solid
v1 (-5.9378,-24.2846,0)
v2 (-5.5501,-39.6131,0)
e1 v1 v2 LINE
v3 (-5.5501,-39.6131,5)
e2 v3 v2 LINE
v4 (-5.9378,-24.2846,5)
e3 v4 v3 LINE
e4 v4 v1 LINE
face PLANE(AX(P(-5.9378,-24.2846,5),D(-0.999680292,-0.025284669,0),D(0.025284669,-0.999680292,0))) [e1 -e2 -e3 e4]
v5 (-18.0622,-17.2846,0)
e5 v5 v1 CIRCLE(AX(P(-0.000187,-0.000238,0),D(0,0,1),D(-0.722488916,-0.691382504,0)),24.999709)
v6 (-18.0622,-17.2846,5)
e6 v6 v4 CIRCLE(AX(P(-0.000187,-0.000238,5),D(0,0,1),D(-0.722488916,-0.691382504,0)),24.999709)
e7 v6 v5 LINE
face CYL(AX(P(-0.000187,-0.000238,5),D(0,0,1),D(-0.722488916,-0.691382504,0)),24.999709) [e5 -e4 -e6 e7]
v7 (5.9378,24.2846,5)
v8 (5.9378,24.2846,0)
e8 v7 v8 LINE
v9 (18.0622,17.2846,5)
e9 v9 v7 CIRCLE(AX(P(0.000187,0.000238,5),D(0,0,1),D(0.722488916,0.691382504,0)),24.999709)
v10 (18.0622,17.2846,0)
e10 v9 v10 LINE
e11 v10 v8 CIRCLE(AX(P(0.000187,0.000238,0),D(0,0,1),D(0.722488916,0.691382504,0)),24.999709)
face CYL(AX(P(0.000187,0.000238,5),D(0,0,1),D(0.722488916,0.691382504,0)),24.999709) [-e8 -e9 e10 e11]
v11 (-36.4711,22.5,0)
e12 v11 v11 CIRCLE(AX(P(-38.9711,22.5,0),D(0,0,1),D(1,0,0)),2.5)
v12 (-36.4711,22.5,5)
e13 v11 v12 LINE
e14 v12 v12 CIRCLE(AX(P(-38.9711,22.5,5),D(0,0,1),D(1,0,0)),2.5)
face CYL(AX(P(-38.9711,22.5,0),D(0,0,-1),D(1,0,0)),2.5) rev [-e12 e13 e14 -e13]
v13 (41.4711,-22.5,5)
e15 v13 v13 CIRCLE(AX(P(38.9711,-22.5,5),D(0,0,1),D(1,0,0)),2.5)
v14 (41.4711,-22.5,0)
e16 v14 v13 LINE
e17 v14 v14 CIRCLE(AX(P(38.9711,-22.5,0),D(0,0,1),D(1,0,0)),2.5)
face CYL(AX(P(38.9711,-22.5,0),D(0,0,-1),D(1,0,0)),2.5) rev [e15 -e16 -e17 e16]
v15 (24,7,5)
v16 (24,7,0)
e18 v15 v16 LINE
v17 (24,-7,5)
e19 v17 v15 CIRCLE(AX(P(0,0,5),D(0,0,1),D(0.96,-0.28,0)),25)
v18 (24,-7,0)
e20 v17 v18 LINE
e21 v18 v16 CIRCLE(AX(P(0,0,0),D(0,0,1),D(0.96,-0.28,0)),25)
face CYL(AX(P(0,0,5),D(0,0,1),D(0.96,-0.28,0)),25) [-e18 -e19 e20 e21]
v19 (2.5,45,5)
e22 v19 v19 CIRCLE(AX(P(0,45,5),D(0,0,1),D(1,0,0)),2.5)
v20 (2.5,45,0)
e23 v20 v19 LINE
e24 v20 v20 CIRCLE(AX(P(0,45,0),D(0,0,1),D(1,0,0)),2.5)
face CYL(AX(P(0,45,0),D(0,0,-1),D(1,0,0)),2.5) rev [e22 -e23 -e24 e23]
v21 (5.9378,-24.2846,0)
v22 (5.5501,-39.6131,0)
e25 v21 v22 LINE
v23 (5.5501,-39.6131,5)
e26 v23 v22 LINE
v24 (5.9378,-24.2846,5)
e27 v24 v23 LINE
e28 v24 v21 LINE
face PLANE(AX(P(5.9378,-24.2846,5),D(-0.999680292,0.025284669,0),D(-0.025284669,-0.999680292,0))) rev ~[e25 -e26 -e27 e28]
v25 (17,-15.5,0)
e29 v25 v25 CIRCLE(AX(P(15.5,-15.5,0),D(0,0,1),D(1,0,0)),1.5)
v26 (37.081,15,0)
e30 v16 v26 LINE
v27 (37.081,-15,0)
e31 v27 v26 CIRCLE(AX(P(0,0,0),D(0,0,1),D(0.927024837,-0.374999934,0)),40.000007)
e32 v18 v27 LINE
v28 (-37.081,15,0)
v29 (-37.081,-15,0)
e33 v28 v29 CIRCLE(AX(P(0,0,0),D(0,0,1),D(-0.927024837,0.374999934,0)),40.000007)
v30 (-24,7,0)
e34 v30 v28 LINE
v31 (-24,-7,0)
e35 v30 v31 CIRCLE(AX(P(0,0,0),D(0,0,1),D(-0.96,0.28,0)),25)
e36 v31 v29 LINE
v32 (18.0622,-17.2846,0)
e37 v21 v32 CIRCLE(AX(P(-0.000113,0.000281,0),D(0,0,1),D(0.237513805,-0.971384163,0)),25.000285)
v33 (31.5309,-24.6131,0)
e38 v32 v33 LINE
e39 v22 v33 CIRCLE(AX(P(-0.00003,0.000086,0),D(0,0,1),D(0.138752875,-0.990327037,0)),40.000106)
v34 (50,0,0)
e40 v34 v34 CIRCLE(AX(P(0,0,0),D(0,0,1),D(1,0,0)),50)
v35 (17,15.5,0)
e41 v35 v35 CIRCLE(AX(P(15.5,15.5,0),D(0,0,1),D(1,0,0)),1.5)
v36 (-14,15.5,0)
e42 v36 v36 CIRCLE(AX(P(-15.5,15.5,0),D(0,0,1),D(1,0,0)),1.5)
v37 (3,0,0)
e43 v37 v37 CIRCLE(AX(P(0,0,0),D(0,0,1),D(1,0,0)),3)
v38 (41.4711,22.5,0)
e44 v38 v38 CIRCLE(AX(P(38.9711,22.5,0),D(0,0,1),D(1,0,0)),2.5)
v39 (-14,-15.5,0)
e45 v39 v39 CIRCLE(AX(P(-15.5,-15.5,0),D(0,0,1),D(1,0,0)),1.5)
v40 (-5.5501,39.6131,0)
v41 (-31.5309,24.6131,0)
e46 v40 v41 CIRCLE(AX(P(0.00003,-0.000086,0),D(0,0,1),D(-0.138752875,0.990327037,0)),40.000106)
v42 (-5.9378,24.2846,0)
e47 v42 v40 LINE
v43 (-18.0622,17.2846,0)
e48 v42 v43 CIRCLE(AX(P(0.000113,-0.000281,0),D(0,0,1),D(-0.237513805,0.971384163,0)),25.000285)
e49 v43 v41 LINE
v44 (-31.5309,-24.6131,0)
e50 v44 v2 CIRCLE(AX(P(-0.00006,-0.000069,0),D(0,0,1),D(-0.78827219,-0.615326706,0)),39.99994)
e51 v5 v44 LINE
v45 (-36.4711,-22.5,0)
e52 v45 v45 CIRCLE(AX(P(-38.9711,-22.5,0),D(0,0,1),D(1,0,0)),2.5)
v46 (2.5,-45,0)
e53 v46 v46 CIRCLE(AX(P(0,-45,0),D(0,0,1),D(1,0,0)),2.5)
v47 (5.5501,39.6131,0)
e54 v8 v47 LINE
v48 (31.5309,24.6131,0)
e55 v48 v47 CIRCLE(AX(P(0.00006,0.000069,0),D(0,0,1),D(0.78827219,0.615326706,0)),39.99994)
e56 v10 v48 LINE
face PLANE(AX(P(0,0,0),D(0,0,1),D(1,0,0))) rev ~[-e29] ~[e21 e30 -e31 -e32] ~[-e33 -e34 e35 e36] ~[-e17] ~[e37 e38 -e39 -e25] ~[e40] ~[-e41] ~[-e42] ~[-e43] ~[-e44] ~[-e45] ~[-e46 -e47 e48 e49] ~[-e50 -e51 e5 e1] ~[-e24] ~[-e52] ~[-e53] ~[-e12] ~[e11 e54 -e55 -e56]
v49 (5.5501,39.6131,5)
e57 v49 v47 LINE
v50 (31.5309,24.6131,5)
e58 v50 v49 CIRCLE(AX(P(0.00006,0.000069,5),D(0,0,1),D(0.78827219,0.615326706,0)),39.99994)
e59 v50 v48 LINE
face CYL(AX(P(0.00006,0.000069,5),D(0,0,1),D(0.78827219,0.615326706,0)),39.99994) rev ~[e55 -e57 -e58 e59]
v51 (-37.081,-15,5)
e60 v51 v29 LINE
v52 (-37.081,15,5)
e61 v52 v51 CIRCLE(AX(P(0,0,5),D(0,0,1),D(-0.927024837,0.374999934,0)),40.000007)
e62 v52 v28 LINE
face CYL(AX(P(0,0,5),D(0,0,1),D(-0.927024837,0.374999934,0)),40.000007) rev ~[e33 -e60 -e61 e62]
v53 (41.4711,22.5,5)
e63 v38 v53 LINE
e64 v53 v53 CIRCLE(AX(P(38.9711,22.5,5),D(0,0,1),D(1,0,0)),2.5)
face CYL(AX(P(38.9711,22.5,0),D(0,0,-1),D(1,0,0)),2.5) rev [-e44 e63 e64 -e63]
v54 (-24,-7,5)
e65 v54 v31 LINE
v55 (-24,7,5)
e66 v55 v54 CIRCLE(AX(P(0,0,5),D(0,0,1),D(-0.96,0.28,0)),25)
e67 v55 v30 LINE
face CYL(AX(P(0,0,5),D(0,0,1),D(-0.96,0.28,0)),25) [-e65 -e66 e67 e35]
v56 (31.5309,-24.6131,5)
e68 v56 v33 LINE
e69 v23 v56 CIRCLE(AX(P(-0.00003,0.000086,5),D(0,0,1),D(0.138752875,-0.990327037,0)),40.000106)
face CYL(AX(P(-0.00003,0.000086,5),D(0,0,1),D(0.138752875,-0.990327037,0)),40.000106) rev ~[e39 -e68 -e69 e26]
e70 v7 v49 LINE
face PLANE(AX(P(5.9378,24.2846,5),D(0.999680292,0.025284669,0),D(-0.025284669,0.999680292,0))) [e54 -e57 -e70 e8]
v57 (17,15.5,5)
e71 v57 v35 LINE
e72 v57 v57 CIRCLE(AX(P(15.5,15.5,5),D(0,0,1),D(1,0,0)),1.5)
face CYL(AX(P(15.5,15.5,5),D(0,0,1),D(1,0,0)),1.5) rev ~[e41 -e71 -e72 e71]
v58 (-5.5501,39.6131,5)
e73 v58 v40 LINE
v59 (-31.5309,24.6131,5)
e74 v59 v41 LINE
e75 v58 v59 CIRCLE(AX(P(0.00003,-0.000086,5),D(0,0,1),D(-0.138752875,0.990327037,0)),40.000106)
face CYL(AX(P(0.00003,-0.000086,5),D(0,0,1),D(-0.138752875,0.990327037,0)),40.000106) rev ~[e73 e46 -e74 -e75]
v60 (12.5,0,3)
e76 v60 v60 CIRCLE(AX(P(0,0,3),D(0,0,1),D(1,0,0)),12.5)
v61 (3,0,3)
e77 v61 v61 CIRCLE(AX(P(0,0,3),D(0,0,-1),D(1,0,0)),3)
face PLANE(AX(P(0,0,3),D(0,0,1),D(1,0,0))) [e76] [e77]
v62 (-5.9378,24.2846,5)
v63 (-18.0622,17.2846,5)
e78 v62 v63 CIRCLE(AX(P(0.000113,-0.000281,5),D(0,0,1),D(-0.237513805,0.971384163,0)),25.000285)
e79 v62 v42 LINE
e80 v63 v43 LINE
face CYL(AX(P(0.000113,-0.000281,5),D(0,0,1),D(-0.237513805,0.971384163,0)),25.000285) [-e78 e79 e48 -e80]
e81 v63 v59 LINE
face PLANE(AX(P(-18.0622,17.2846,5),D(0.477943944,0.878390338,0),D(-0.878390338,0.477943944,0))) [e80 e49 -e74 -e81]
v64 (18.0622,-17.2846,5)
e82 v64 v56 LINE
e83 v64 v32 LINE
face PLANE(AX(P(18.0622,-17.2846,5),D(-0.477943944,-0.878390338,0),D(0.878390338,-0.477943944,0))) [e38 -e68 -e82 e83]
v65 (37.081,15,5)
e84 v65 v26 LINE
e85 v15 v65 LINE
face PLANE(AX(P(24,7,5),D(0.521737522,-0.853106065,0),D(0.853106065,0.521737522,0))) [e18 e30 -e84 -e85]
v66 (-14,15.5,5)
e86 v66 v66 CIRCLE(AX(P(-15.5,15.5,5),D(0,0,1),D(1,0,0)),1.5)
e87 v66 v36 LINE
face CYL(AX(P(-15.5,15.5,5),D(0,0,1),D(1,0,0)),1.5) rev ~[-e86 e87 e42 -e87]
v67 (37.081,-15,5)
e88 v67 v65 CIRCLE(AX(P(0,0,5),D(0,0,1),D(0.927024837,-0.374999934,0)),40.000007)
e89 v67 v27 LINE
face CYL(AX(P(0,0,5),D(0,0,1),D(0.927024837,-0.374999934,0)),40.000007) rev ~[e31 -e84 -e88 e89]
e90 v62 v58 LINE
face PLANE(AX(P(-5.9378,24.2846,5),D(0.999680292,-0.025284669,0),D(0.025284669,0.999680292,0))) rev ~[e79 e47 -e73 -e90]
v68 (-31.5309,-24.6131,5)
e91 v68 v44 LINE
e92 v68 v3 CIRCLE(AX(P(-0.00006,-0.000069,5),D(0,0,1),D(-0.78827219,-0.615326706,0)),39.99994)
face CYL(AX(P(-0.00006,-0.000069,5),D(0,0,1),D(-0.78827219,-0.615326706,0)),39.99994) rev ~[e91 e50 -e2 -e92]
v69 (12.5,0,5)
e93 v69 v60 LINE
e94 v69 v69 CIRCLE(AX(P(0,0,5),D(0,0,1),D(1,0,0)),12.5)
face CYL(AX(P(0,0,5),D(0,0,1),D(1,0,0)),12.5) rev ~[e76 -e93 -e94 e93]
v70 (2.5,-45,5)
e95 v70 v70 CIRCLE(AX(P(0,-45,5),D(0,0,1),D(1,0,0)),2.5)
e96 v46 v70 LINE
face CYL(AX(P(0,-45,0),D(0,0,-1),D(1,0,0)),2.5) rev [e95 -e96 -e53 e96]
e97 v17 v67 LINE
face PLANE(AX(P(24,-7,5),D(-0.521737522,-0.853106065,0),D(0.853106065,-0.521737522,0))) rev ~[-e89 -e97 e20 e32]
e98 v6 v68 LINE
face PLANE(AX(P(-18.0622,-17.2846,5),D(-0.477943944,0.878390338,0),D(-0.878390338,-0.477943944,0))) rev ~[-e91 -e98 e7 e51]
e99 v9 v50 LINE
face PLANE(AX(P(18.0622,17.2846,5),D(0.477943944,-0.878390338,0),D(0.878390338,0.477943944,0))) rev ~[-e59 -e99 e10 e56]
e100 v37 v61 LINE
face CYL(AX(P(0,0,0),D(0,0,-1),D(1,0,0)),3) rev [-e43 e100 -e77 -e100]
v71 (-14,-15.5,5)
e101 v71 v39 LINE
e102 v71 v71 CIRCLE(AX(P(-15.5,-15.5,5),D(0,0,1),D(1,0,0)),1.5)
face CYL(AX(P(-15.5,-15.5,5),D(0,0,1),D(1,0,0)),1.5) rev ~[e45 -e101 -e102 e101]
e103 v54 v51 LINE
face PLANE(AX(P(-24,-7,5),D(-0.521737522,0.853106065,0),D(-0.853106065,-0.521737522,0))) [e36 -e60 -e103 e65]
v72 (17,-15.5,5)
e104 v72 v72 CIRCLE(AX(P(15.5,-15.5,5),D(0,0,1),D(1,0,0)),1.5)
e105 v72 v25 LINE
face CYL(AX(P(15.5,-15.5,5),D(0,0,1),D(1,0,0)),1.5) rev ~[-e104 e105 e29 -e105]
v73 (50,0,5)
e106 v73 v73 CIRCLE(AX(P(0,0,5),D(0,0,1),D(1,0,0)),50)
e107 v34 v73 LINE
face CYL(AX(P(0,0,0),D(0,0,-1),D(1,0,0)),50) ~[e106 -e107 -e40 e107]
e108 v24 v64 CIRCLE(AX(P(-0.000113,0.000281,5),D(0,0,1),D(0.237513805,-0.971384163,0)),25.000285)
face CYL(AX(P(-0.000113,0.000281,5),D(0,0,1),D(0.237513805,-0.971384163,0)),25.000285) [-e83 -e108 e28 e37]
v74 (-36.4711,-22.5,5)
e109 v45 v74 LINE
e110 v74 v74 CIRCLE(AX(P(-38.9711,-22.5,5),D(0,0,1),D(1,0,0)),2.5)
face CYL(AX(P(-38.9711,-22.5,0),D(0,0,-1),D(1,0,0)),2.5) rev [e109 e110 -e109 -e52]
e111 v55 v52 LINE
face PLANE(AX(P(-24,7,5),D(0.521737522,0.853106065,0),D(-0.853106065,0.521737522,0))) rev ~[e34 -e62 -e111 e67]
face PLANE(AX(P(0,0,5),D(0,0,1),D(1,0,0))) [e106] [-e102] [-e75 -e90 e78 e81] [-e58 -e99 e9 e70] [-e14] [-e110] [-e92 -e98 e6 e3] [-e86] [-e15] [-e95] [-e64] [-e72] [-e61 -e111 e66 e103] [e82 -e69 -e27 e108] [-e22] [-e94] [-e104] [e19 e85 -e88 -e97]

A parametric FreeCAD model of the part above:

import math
import FreeCAD as App
import Part
import Sketcher
Q = App.Units.Quantity

doc = App.newDocument("Part")
params = doc.addObject("Spreadsheet::Sheet", "Params")
for row, (alias, value) in enumerate([
    ("sketch1_diameter", "100 mm"),
    ("sketch1_diameter2", "5 mm"),
    ("sketch1_diameter3", "6 mm"),
    ("pad1_length", "5 mm"),
    ("sketch2_diameter", "25 mm"),
    ("pocket1_length", "2 mm"),
    ("sketch3_radius", "25 mm"),
    ("sketch3_radius2", "40 mm"),
    ("sketch4_diameter", "3 mm"),
], start=1):
    params.set(f"A{row}", alias)
    params.set(f"B{row}", "=" + value)
    params.setAlias(f"B{row}", alias)

body = doc.addObject("PartDesign::Body", "Body")

# Sketch on XY plane
sketch1 = doc.addObject("Sketcher::SketchObject", "Sketch")
body.addObject(sketch1)
sketch1.AttachmentSupport = (doc.XY_Plane, [""])
sketch1.MapMode = "FlatFace"
sketch1.addGeometry([
    Part.Circle(App.Vector(0, 0, 0), App.Vector(0, 0, 1), 50),  # 0
    Part.Circle(App.Vector(-39, -22.5, 0), App.Vector(0, 0, 1), 2.5),  # 1
    Part.Circle(App.Vector(0, -45, 0), App.Vector(0, 0, 1), 2.5),  # 2
    Part.Circle(App.Vector(39, -22.5, 0), App.Vector(0, 0, 1), 2.5),  # 3
    Part.Circle(App.Vector(-39, 22.5, 0), App.Vector(0, 0, 1), 2.5),  # 4
    Part.Circle(App.Vector(0, 0, 0), App.Vector(0, 0, 1), 3),  # 5
    Part.Circle(App.Vector(39, 22.5, 0), App.Vector(0, 0, 1), 2.5),  # 6
    Part.Circle(App.Vector(0, 45, 0), App.Vector(0, 0, 1), 2.5),  # 7
], False)
sketch1.addConstraint([
    Sketcher.Constraint("Coincident", 0, 3, -1, 1),
    Sketcher.Constraint("Coincident", 5, 3, -1, 1),
    Sketcher.Constraint("Equal", 1, 2),
    Sketcher.Constraint("Equal", 2, 3),
    Sketcher.Constraint("Equal", 3, 4),
    Sketcher.Constraint("Equal", 4, 6),
    Sketcher.Constraint("Equal", 6, 7),
    Sketcher.Constraint("Symmetric", 3, 3, 4, 3, -1, 1),
    Sketcher.Constraint("Symmetric", 1, 3, 6, 3, -1, 1),
    Sketcher.Constraint("Symmetric", 2, 3, 7, 3, -1, 1),
    Sketcher.Constraint("Symmetric", 1, 3, 3, 3, -2),
    Sketcher.Constraint("PointOnObject", 2, 3, -2),
    Sketcher.Constraint("Diameter", 0, Q("100 mm")),
    Sketcher.Constraint("Diameter", 1, Q("5 mm")),
    Sketcher.Constraint("Diameter", 5, Q("6 mm")),
    Sketcher.Constraint("DistanceY", 2, 3, -1, 1, Q("45 mm")),
    Sketcher.Constraint("DistanceY", 1, 3, 4, 3, Q("45 mm")),
    Sketcher.Constraint("DistanceX", 1, 3, -1, 1, Q("38.971 mm")),
])
sketch1.setExpression("Constraints[12]", "Params.sketch1_diameter")
sketch1.setExpression("Constraints[13]", "Params.sketch1_diameter2")
sketch1.setExpression("Constraints[14]", "Params.sketch1_diameter3")
pad1 = doc.addObject("PartDesign::Pad", "Pad")
body.addObject(pad1)
pad1.Profile = sketch1
pad1.setExpression("Length", "Params.pad1_length")

# Sketch on XY plane
sketch2 = doc.addObject("Sketcher::SketchObject", "Sketch001")
body.addObject(sketch2)
sketch2.AttachmentSupport = (doc.XY_Plane, [""])
sketch2.MapMode = "FlatFace"
sketch2.AttachmentOffset = App.Placement(App.Vector(0, 0, 5), App.Rotation())
sketch2.addGeometry(Part.Circle(App.Vector(0, 0, 0), App.Vector(0, 0, 1), 12), False)
sketch2.addConstraint([
    Sketcher.Constraint("Coincident", 0, 3, -1, 1),
    Sketcher.Constraint("Diameter", 0, Q("25 mm")),
])
sketch2.setExpression("Constraints[1]", "Params.sketch2_diameter")
pocket1 = doc.addObject("PartDesign::Pocket", "Pocket")
body.addObject(pocket1)
pocket1.Profile = sketch2
pocket1.setExpression("Length", "Params.pocket1_length")

# Sketch on XY plane
sketch3 = doc.addObject("Sketcher::SketchObject", "Sketch002")
body.addObject(sketch3)
sketch3.AttachmentSupport = (doc.XY_Plane, [""])
sketch3.MapMode = "FlatFace"
sketch3.AttachmentOffset = App.Placement(App.Vector(0, 0, 5), App.Rotation())
sketch3.addGeometry([
    Part.LineSegment(App.Vector(37, 15, 0), App.Vector(24, 7, 0)),  # 0
    Part.ArcOfCircle(Part.Circle(App.Vector(0, 0, 0), App.Vector(0, 0, 1), 25), math.radians(-16), math.radians(16)),  # 1
    Part.LineSegment(App.Vector(24, -7, 0), App.Vector(37, -15, 0)),  # 2
    Part.ArcOfCircle(Part.Circle(App.Vector(0, 0, 0), App.Vector(0, 0, 1), 40), math.radians(-22), math.radians(22)),  # 3
    Part.LineSegment(App.Vector(6, 40, 0), App.Vector(6, 24, 0)),  # 4
    Part.ArcOfCircle(Part.Circle(App.Vector(0, 0, 0), App.Vector(0, 0, 1), 25), math.radians(44), math.radians(76)),  # 5
    Part.LineSegment(App.Vector(18, 17, 0), App.Vector(32, 25, 0)),  # 6
    Part.ArcOfCircle(Part.Circle(App.Vector(0, 0, 0), App.Vector(0, 0, 1), 40), math.radians(38), math.radians(82)),  # 7
    Part.LineSegment(App.Vector(-32, 25, 0), App.Vector(-18, 17, 0)),  # 8
    Part.ArcOfCircle(Part.Circle(App.Vector(0, 0, 0), App.Vector(0, 0, 1), 25), math.radians(104), math.radians(136)),  # 9
    Part.LineSegment(App.Vector(-6, 24, 0), App.Vector(-6, 40, 0)),  # 10
    Part.ArcOfCircle(Part.Circle(App.Vector(0, 0, 0), App.Vector(0, 0, 1), 40), math.radians(98), math.radians(142)),  # 11
    Part.LineSegment(App.Vector(-37, -15, 0), App.Vector(-24, -7, 0)),  # 12
    Part.ArcOfCircle(Part.Circle(App.Vector(0, 0, 0), App.Vector(0, 0, 1), 25), math.radians(164), math.radians(196)),  # 13
    Part.LineSegment(App.Vector(-24, 7, 0), App.Vector(-37, 15, 0)),  # 14
    Part.ArcOfCircle(Part.Circle(App.Vector(0, 0, 0), App.Vector(0, 0, 1), 40), math.radians(158), math.radians(202)),  # 15
    Part.LineSegment(App.Vector(-6, -40, 0), App.Vector(-6, -24, 0)),  # 16
    Part.ArcOfCircle(Part.Circle(App.Vector(0, 0, 0), App.Vector(0, 0, 1), 25), math.radians(-136), math.radians(-104)),  # 17
    Part.LineSegment(App.Vector(-18, -17, 0), App.Vector(-32, -25, 0)),  # 18
    Part.ArcOfCircle(Part.Circle(App.Vector(0, 0, 0), App.Vector(0, 0, 1), 40), math.radians(-142), math.radians(-98)),  # 19
    Part.LineSegment(App.Vector(32, -25, 0), App.Vector(18, -17, 0)),  # 20
    Part.ArcOfCircle(Part.Circle(App.Vector(0, 0, 0), App.Vector(0, 0, 1), 25), math.radians(-76), math.radians(-44)),  # 21
    Part.LineSegment(App.Vector(6, -24, 0), App.Vector(6, -40, 0)),  # 22
    Part.ArcOfCircle(Part.Circle(App.Vector(0, 0, 0), App.Vector(0, 0, 1), 40), math.radians(-82), math.radians(-38)),  # 23
], False)
sketch3.addConstraint([
    Sketcher.Constraint("Coincident", 0, 2, 1, 2),
    Sketcher.Constraint("Coincident", 1, 1, 2, 1),
    Sketcher.Constraint("Coincident", 2, 2, 3, 1),
    Sketcher.Constraint("Coincident", 3, 2, 0, 1),
    Sketcher.Constraint("Coincident", 4, 2, 5, 2),
    Sketcher.Constraint("Coincident", 5, 1, 6, 1),
    Sketcher.Constraint("Coincident", 6, 2, 7, 1),
    Sketcher.Constraint("Coincident", 7, 2, 4, 1),
    Sketcher.Constraint("Coincident", 8, 2, 9, 2),
    Sketcher.Constraint("Coincident", 9, 1, 10, 1),
    Sketcher.Constraint("Coincident", 10, 2, 11, 1),
    Sketcher.Constraint("Coincident", 11, 2, 8, 1),
    Sketcher.Constraint("Coincident", 12, 2, 13, 2),
    Sketcher.Constraint("Coincident", 13, 1, 14, 1),
    Sketcher.Constraint("Coincident", 14, 2, 15, 1),
    Sketcher.Constraint("Coincident", 15, 2, 12, 1),
    Sketcher.Constraint("Coincident", 16, 2, 17, 2),
    Sketcher.Constraint("Coincident", 17, 1, 18, 1),
    Sketcher.Constraint("Coincident", 18, 2, 19, 1),
    Sketcher.Constraint("Coincident", 19, 2, 16, 1),
    Sketcher.Constraint("Coincident", 20, 2, 21, 2),
    Sketcher.Constraint("Coincident", 21, 1, 22, 1),
    Sketcher.Constraint("Coincident", 22, 2, 23, 1),
    Sketcher.Constraint("Coincident", 23, 2, 20, 1),
    Sketcher.Constraint("Coincident", 1, 3, -1, 1),
    Sketcher.Constraint("Coincident", 3, 3, -1, 1),
    Sketcher.Constraint("Coincident", 5, 3, -1, 1),
    Sketcher.Constraint("Coincident", 7, 3, -1, 1),
    Sketcher.Constraint("Coincident", 9, 3, -1, 1),
    Sketcher.Constraint("Coincident", 11, 3, -1, 1),
    Sketcher.Constraint("Coincident", 13, 3, -1, 1),
    Sketcher.Constraint("Coincident", 15, 3, -1, 1),
    Sketcher.Constraint("Coincident", 17, 3, -1, 1),
    Sketcher.Constraint("Coincident", 19, 3, -1, 1),
    Sketcher.Constraint("Coincident", 21, 3, -1, 1),
    Sketcher.Constraint("Coincident", 23, 3, -1, 1),
    Sketcher.Constraint("Equal", 1, 5),
    Sketcher.Constraint("Equal", 3, 7),
    Sketcher.Constraint("Equal", 5, 9),
    Sketcher.Constraint("Equal", 7, 11),
    Sketcher.Constraint("Equal", 9, 13),
    Sketcher.Constraint("Equal", 11, 15),
    Sketcher.Constraint("Equal", 13, 17),
    Sketcher.Constraint("Equal", 15, 19),
    Sketcher.Constraint("Equal", 17, 21),
    Sketcher.Constraint("Equal", 19, 23),
    Sketcher.Constraint("Parallel", 0, 12),
    Sketcher.Constraint("Parallel", 2, 14),
    Sketcher.Constraint("Parallel", 4, 16),
    Sketcher.Constraint("Parallel", 6, 18),
    Sketcher.Constraint("Parallel", 8, 20),
    Sketcher.Constraint("Parallel", 10, 22),
    Sketcher.Constraint("Horizontal", 5, 1, 8, 2),
    Sketcher.Constraint("Horizontal", 4, 2, 9, 1),
    Sketcher.Constraint("Horizontal", 7, 2, 10, 2),
    Sketcher.Constraint("Horizontal", 6, 2, 11, 2),
    Sketcher.Constraint("Horizontal", 1, 1, 12, 2),
    Sketcher.Constraint("Horizontal", 0, 2, 13, 1),
    Sketcher.Constraint("Horizontal", 3, 2, 14, 2),
    Sketcher.Constraint("Horizontal", 17, 1, 20, 2),
    Sketcher.Constraint("Horizontal", 16, 2, 21, 1),
    Sketcher.Constraint("Vertical", 0, 2, 1, 1),
    Sketcher.Constraint("Vertical", 9, 1, 16, 2),
    Sketcher.Constraint("Vertical", 8, 2, 17, 1),
    Sketcher.Constraint("Equal", 2, 4),
    Sketcher.Constraint("Equal", 4, 6),
    Sketcher.Constraint("Radius", 1, Q("25 mm")),
    Sketcher.Constraint("Radius", 3, Q("40 mm")),
    Sketcher.Constraint("DistanceY", -1, 1, 0, 2, Q("7 mm")),
    Sketcher.Constraint("DistanceY", 2, 2, -1, 1, Q("15 mm")),
    Sketcher.Constraint("DistanceY", 5, 1, 4, 2, Q("7 mm")),
    Sketcher.Constraint("DistanceY", 6, 2, 7, 2, Q("15 mm")),
])
sketch3.setExpression("Constraints[66]", "Params.sketch3_radius")
sketch3.setExpression("Constraints[67]", "Params.sketch3_radius2")
pocket2 = doc.addObject("PartDesign::Pocket", "Pocket001")
body.addObject(pocket2)
pocket2.Profile = sketch3
pocket2.Type = "ThroughAll"

# Sketch on XY plane
sketch4 = doc.addObject("Sketcher::SketchObject", "Sketch003")
body.addObject(sketch4)
sketch4.AttachmentSupport = (doc.XY_Plane, [""])
sketch4.MapMode = "FlatFace"
sketch4.AttachmentOffset = App.Placement(App.Vector(0, 0, 5), App.Rotation())
sketch4.addGeometry([
    Part.Circle(App.Vector(-15.5, 15.5, 0), App.Vector(0, 0, 1), 1.5),
    Part.Circle(App.Vector(15.5, 15.5, 0), App.Vector(0, 0, 1), 1.5),
    Part.Circle(App.Vector(15.5, -15.5, 0), App.Vector(0, 0, 1), 1.5),
    Part.Circle(App.Vector(-15.5, -15.5, 0), App.Vector(0, 0, 1), 1.5),
], False)
sketch4.addConstraint([
    Sketcher.Constraint("Equal", 0, 1),
    Sketcher.Constraint("Equal", 1, 2),
    Sketcher.Constraint("Equal", 2, 3),
    Sketcher.Constraint("Symmetric", 0, 3, 2, 3, -1, 1),
    Sketcher.Constraint("Symmetric", 1, 3, 3, 3, -1, 1),
    Sketcher.Constraint("Symmetric", 0, 3, 1, 3, -2),
    Sketcher.Constraint("Diameter", 0, Q("3 mm")),
    Sketcher.Constraint("DistanceX", 0, 3, 1, 3, Q("31 mm")),
    Sketcher.Constraint("DistanceY", 2, 3, 1, 3, Q("31 mm")),
])
sketch4.setExpression("Constraints[6]", "Params.sketch4_diameter")
pocket3 = doc.addObject("PartDesign::Pocket", "Pocket002")
body.addObject(pocket3)
pocket3.Profile = sketch4
pocket3.Type = "ThroughAll"

doc.recompute()
